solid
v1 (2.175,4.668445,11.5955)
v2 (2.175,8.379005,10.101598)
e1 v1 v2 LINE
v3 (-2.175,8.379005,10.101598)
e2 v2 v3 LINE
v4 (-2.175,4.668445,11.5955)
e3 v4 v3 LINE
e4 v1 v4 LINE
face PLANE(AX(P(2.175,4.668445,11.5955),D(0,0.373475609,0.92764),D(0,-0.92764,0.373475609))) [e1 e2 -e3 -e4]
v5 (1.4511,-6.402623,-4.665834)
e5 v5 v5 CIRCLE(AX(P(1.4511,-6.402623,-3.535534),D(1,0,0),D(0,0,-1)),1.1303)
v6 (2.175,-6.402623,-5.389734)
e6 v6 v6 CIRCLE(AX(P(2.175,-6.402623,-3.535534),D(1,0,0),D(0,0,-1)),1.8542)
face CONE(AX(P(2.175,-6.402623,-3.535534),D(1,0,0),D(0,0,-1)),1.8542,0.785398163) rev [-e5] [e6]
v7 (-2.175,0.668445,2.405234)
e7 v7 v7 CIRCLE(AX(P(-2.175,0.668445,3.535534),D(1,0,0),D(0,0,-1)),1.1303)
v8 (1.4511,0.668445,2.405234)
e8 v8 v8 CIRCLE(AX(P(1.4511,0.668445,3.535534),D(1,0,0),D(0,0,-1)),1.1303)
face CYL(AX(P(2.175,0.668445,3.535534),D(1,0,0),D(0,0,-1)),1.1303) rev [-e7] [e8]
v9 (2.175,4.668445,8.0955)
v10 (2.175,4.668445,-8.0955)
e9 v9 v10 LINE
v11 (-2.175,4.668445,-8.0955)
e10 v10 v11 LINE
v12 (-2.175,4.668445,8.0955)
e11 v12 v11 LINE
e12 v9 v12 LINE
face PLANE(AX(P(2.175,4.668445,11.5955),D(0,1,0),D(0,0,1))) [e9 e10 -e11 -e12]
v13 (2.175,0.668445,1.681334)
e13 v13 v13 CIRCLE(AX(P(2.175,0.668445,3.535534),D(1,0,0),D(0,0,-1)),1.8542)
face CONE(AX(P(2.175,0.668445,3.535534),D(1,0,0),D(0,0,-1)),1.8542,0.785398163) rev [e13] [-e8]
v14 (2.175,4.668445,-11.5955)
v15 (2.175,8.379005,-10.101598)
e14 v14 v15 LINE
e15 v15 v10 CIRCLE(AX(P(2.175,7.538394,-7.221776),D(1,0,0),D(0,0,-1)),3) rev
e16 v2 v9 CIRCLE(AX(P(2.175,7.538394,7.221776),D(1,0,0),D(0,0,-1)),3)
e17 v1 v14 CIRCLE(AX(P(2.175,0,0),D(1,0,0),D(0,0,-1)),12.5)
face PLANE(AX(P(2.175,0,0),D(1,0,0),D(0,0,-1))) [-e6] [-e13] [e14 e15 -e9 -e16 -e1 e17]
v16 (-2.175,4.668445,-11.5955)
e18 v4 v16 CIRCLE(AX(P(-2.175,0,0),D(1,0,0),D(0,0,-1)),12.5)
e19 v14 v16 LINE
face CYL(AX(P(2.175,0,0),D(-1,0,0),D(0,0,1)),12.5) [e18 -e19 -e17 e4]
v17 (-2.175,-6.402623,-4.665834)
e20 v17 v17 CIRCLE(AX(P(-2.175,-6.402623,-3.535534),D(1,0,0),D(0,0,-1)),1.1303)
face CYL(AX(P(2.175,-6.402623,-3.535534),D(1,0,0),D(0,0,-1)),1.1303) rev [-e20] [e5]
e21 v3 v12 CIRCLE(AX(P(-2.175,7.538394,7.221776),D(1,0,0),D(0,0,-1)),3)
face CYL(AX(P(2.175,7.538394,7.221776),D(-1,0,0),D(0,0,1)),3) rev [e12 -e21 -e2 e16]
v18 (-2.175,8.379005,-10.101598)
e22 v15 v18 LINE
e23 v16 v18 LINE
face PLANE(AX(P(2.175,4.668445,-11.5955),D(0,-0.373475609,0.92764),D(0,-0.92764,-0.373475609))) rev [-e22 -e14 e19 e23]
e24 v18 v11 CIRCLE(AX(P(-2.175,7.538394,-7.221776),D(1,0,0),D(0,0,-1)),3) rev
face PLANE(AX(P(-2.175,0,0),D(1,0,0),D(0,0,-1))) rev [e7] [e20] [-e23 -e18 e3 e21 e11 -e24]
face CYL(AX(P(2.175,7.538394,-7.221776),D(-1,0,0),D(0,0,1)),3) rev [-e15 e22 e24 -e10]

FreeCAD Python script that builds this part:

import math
import FreeCAD as App
import Part
import Sketcher
from FreeCAD import Vector
Q = App.Units.Quantity

doc = App.newDocument("Part")
body = doc.addObject("PartDesign::Body", "Body")

# Sketch on YZ plane
sketch1 = body.newObject("Sketcher::SketchObject", "Sketch")
sketch1.AttachmentSupport = (doc.getObject("YZ_Plane"), [""])
sketch1.MapMode = "FlatFace"
sketch1.addGeometry(Part.LineSegment(Vector(8.4, 10.1, 0), Vector(4.7, 11.6, 0)), False)
sketch1.addGeometry(Part.ArcOfCircle(Part.Circle(Vector(0, 0, 0), Vector(0, 0, 1), 12.5), math.radians(68), math.radians(292)), False)
sketch1.addGeometry(Part.LineSegment(Vector(4.7, -11.6, 0), Vector(8.4, -10.1, 0)), False)
sketch1.addGeometry(Part.ArcOfCircle(Part.Circle(Vector(7.5, -7.2, 0), Vector(0, 0, 1), 3), math.radians(-163), math.radians(-74)), False)
sketch1.addGeometry(Part.LineSegment(Vector(4.7, -8.1, 0), Vector(4.7, 8.1, 0)), False)
sketch1.addGeometry(Part.ArcOfCircle(Part.Circle(Vector(7.5, 7.2, 0), Vector(0, 0, 1), 3), math.radians(74), math.radians(163)), False)
sketch1.addConstraint(Sketcher.Constraint("Tangent", 0, 2, 1, 1))
sketch1.addConstraint(Sketcher.Constraint("Tangent", 1, 2, 2, 1))
sketch1.addConstraint(Sketcher.Constraint("Coincident", 2, 2, 3, 2))
sketch1.addConstraint(Sketcher.Constraint("Coincident", 3, 1, 4, 1))
sketch1.addConstraint(Sketcher.Constraint("Coincident", 4, 2, 5, 2))
sketch1.addConstraint(Sketcher.Constraint("Coincident", 5, 1, 0, 1))
sketch1.addConstraint(Sketcher.Constraint("Vertical", 4))
sketch1.addConstraint(Sketcher.Constraint("Coincident", 1, 3, -1, 1))
sketch1.addConstraint(Sketcher.Constraint("Equal", 3, 5))
sketch1.addConstraint(Sketcher.Constraint("Symmetric", 3, 3, 5, 3, -1))
sketch1.addConstraint(Sketcher.Constraint("Vertical", 0, 2, 1, 2))
sketch1.addConstraint(Sketcher.Constraint("Vertical", 1, 2, 3, 1))
sketch1.addConstraint(Sketcher.Constraint("Radius", 3, Q("3 mm")))
sketch1.addConstraint(Sketcher.Constraint("Radius", 1, Q("12.5 mm")))
sketch1.addConstraint(Sketcher.Constraint("Distance", 0, Q("4 mm")))
sketch1.addConstraint(Sketcher.Constraint("DistanceY", 1, 2, 3, 1, Q("3.5 mm")))
sketch1.addConstraint(Sketcher.Constraint("DistanceY", 4, 1, 4, 2, Q("16.191 mm")))
pad1 = body.newObject("PartDesign::Pad", "Pad")
pad1.Profile = sketch1
pad1.Length = 4.35
pad1.Midplane = True

# Sketch on YZ plane
sketch2 = body.newObject("Sketcher::SketchObject", "Sketch001")
sketch2.AttachmentSupport = (doc.getObject("YZ_Plane"), [""])
sketch2.MapMode = "FlatFace"
sketch2.AttachmentOffset = App.Placement(Vector(0, 0, 2.175), App.Rotation())
sketch2.addGeometry(Part.Circle(Vector(0.7, 3.5, 0), Vector(0, 0, 1), 1.1), False)
sketch2.addGeometry(Part.Circle(Vector(-6.4, -3.5, 0), Vector(0, 0, 1), 1.1), False)
sketch2.addConstraint(Sketcher.Constraint("Equal", 0, 1))
sketch2.addConstraint(Sketcher.Constraint("Diameter", 0, Q("2.2606 mm")))
sketch2.addConstraint(Sketcher.Constraint("DistanceX", -1, 1, 0, 3, Q("0.668445 mm")))
sketch2.addConstraint(Sketcher.Constraint("DistanceY", -1, 1, 0, 3, Q("3.535534 mm")))
sketch2.addConstraint(Sketcher.Constraint("DistanceX", 1, 3, -1, 1, Q("6.402623 mm")))
sketch2.addConstraint(Sketcher.Constraint("DistanceY", 1, 3, -1, 1, Q("3.535534 mm")))
doc.recompute()
hole = body.newObject("PartDesign::Hole", "Hole")
hole.Profile = sketch2
hole.ThreadType = "None"
hole.Diameter = 2.2606
hole.DepthType = "ThroughAll"
hole.HoleCutType = "Countersink"
hole.HoleCutDiameter = 3.7084
hole.HoleCutCountersinkAngle = 90

doc.recompute()
